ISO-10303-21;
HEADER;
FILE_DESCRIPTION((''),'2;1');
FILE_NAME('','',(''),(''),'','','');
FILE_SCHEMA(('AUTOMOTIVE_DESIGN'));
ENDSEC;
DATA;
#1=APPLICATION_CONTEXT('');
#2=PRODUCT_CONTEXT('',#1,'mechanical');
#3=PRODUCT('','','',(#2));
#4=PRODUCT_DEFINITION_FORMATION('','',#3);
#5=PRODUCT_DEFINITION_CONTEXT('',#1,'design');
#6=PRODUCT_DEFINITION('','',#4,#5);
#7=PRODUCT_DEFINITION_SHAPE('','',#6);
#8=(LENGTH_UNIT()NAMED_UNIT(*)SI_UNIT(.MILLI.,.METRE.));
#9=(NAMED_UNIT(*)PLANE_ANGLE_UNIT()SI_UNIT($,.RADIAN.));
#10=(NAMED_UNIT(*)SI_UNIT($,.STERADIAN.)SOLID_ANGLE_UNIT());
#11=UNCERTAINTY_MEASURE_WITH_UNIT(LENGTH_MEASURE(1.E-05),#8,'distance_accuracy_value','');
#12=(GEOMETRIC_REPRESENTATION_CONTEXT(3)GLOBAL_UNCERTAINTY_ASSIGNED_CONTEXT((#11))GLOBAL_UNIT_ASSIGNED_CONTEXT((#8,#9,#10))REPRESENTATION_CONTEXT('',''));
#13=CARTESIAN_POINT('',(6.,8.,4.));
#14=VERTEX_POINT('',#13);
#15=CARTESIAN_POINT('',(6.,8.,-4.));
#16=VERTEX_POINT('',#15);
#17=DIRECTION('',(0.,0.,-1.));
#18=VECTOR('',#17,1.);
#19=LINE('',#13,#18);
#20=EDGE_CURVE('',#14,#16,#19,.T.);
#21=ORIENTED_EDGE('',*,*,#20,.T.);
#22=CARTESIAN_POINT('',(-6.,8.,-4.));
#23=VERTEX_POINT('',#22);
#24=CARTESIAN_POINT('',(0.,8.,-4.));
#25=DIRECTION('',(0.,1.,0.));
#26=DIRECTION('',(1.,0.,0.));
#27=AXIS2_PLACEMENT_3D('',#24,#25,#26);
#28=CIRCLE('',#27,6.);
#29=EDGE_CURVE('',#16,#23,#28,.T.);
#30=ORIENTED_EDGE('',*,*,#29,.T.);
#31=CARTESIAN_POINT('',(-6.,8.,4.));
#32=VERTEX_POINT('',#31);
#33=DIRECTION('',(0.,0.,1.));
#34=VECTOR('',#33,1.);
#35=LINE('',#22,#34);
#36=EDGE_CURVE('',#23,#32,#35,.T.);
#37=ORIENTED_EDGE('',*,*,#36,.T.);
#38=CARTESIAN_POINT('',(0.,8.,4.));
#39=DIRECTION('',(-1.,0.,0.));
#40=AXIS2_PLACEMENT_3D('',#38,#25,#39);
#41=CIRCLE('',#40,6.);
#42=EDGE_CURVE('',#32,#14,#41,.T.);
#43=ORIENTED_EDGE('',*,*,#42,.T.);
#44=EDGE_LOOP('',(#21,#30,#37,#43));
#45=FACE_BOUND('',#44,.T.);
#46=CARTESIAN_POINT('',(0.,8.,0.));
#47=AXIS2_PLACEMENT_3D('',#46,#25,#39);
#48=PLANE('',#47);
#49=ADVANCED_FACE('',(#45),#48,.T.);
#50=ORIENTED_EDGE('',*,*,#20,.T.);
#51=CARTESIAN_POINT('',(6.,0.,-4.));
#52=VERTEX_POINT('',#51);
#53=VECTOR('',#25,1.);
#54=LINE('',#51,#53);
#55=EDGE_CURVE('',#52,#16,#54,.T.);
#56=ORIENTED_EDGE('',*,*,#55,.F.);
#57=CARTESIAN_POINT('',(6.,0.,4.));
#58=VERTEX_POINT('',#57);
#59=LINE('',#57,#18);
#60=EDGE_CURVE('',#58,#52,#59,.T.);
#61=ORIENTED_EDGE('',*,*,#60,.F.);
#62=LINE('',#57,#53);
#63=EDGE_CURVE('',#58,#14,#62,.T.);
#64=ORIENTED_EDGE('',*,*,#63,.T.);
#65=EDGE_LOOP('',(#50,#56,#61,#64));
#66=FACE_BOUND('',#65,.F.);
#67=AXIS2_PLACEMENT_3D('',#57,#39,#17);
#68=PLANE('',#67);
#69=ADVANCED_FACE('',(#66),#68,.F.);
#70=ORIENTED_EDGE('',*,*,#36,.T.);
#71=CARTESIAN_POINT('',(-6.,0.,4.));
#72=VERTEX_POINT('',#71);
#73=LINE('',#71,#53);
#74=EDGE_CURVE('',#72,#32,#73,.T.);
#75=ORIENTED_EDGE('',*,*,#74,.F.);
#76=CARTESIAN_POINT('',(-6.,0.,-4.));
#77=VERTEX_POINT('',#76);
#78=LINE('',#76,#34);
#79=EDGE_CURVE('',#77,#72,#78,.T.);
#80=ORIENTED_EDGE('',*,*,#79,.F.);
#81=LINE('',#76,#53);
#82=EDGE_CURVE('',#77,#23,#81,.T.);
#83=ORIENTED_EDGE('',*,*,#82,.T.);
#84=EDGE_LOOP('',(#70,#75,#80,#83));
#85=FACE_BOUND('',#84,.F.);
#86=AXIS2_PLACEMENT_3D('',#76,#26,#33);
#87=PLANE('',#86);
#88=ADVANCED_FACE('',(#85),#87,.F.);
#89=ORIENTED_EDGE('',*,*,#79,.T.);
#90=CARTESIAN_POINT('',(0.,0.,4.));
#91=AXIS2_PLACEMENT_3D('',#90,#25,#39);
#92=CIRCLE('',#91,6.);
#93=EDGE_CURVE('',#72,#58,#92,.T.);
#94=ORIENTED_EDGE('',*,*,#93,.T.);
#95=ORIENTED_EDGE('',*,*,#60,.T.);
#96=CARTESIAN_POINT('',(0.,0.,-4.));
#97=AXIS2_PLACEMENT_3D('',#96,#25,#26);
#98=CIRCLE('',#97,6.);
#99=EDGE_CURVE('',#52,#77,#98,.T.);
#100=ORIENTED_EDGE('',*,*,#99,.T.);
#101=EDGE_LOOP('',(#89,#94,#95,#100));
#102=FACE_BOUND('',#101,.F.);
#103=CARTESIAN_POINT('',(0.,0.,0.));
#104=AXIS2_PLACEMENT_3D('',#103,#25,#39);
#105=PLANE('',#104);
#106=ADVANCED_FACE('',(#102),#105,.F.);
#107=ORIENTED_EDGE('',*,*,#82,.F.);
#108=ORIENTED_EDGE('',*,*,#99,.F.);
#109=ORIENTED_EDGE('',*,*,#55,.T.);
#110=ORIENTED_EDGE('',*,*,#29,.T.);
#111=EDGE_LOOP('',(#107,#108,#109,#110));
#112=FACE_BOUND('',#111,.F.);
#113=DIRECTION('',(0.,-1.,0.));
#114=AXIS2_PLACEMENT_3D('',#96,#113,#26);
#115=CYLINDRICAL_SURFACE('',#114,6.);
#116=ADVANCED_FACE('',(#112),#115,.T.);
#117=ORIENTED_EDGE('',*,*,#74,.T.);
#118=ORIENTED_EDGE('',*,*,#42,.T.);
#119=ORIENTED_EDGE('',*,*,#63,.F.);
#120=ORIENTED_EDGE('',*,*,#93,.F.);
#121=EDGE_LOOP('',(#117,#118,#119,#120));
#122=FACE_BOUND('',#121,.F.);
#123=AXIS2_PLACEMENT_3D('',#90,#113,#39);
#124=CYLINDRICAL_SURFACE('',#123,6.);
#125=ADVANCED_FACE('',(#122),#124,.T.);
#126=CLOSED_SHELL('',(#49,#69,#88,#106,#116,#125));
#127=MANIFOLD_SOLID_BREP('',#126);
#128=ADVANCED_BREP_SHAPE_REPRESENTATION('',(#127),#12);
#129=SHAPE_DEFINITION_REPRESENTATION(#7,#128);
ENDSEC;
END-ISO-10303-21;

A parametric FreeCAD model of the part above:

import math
import FreeCAD as App
import Part
import Sketcher
from FreeCAD import Vector
Q = App.Units.Quantity

doc = App.newDocument("Part")
params = doc.addObject("Spreadsheet::Sheet", "Params")
for row, (alias, value) in enumerate([
    ("sketch1_radius", "6 mm"),
    ("sketch1_height", "8 mm"),
    ("pad1_length", "8 mm"),
], start=1):
    params.set(f"A{row}", alias)
    params.set(f"B{row}", "=" + value)
    params.setAlias(f"B{row}", alias)

body = doc.addObject("PartDesign::Body", "Body")

# Sketch on XZ plane
sketch1 = body.newObject("Sketcher::SketchObject", "Sketch")
sketch1.AttachmentSupport = (doc.getObject("XZ_Plane"), [""])
sketch1.MapMode = "FlatFace"
sketch1.addGeometry([
    Part.ArcOfCircle(Part.Circle(Vector(0, 4, 0), Vector(0, 0, 1), 6), math.radians(0), math.radians(180)),
    Part.LineSegment(Vector(6, 4, 0), Vector(6, -4, 0)),
    Part.ArcOfCircle(Part.Circle(Vector(0, -4, 0), Vector(0, 0, 1), 6), math.radians(180), math.radians(360)),
    Part.LineSegment(Vector(-6, -4, 0), Vector(-6, 4, 0)),
], False)
sketch1.addConstraint([
    Sketcher.Constraint("Tangent", 0, 1, 1, 1),
    Sketcher.Constraint("Tangent", 1, 2, 2, 2),
    Sketcher.Constraint("Tangent", 2, 1, 3, 1),
    Sketcher.Constraint("Tangent", 3, 2, 0, 2),
    Sketcher.Constraint("Vertical", 1),
    Sketcher.Constraint("Vertical", 3),
    Sketcher.Constraint("Symmetric", 0, 3, 2, 3, -1, 1),
    Sketcher.Constraint("Radius", 0, Q("6 mm")),
    Sketcher.Constraint("DistanceY", 1, 2, 1, 1, Q("8 mm")),
])
sketch1.setExpression("Constraints[7]", "Params.sketch1_radius")
sketch1.setExpression("Constraints[8]", "Params.sketch1_height")
pad1 = body.newObject("PartDesign::Pad", "Pad")
pad1.Profile = sketch1
pad1.setExpression("Length", "Params.pad1_length")
pad1.Reversed = True

doc.recompute()
